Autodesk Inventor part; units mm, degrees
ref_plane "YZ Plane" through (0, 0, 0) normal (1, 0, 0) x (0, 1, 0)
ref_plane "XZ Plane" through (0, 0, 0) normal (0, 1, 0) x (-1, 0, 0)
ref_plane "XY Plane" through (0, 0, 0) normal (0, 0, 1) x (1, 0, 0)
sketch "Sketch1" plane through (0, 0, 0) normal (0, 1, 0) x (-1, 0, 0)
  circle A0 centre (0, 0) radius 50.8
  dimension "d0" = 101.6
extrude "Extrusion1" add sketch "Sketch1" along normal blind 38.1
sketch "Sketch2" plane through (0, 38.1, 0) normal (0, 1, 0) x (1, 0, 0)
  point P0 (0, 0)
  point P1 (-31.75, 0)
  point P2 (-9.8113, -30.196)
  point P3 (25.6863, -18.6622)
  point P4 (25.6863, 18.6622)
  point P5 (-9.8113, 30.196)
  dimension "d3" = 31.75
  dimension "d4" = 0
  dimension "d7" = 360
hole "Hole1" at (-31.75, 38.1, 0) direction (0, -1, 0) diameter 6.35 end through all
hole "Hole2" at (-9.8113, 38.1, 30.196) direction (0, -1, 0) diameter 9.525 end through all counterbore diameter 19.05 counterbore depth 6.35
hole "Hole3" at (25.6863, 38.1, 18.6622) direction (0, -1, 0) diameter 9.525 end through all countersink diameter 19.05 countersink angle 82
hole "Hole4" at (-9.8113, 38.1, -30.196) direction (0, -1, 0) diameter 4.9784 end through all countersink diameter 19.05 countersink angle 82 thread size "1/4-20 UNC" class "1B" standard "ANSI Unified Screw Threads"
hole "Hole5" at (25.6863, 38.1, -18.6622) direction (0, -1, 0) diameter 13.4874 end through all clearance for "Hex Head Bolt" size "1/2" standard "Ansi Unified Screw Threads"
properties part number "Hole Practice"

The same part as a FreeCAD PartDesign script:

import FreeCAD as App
import Part
import Sketcher

V = App.Vector
Q = App.Units.Quantity

doc = App.newDocument("Part")
params = doc.addObject("Spreadsheet::Sheet", "Params")
for row, (alias, value) in enumerate([
    ("sketch1_diameter", "4 in"),
    ("pad1_length", "1.5 in"),
    ("sketch2_diameter", "0.25 in"),
    ("hole_diameter", "0.25 in"),
    ("sketch3_diameter", "0.375 in"),
    ("hole2_diameter", "0.375 in"),
    ("hole2_cbore_diameter", "0.75 in"),
    ("hole2_cbore_depth", "0.25 in"),
    ("sketch4_diameter", "0.375 in"),
    ("hole3_diameter", "0.375 in"),
    ("hole3_csink_diameter", "0.75 in"),
    ("sketch5_diameter", "0.196 in"),
    ("hole4_diameter", "0.196 in"),
    ("hole4_csink_diameter", "0.75 in"),
    ("sketch6_diameter", "0.531 in"),
    ("hole5_diameter", "0.531 in"),
], start=1):
    params.set(f"A{row}", alias)
    params.set(f"B{row}", "=" + value)
    params.setAlias(f"B{row}", alias)

body = doc.addObject("PartDesign::Body", "Body")

# Sketch on XZ plane
sketch1 = doc.addObject("Sketcher::SketchObject", "Sketch")
body.addObject(sketch1)
sketch1.AttachmentSupport = (doc.XZ_Plane, [""])
sketch1.MapMode = "FlatFace"
sketch1.addGeometry(Part.Circle(V(0, 0, 0), V(0, 0, 1), 51), False)
sketch1.addConstraint([
    Sketcher.Constraint("Coincident", 0, 3, -1, 1),
    Sketcher.Constraint("Diameter", 0, Q("4 in")),
])
sketch1.setExpression("Constraints[1]", "Params.sketch1_diameter")
pad1 = doc.addObject("PartDesign::Pad", "Pad")
body.addObject(pad1)
pad1.Profile = sketch1
pad1.setExpression("Length", "Params.pad1_length")
pad1.Reversed = True

# Sketch on XZ plane
sketch2 = doc.addObject("Sketcher::SketchObject", "Sketch001")
body.addObject(sketch2)
sketch2.AttachmentSupport = (doc.XZ_Plane, [""])
sketch2.MapMode = "FlatFace"
sketch2.AttachmentOffset = App.Placement(V(0, 0, -1.5 * 25.4), App.Rotation())
sketch2.addGeometry(Part.Circle(V(-31.8, 0, 0), V(0, 0, 1), 3.2), False)
sketch2.addConstraint([
    Sketcher.Constraint("PointOnObject", 0, 3, -1),
    Sketcher.Constraint("Diameter", 0, Q("0.25 in")),
    Sketcher.Constraint("DistanceX", 0, 3, -1, 1, Q("1.25 in")),
])
sketch2.setExpression("Constraints[1]", "Params.sketch2_diameter")
doc.recompute()
hole = doc.addObject("PartDesign::Hole", "Hole")
body.addObject(hole)
hole.Profile = sketch2
hole.ThreadType = "None"
hole.setExpression("Diameter", "Params.hole_diameter")
hole.DepthType = "ThroughAll"
hole.Reversed = True

# Sketch on XZ plane
sketch3 = doc.addObject("Sketcher::SketchObject", "Sketch002")
body.addObject(sketch3)
sketch3.AttachmentSupport = (doc.XZ_Plane, [""])
sketch3.MapMode = "FlatFace"
sketch3.AttachmentOffset = App.Placement(V(0, 0, -1.5 * 25.4), App.Rotation())
sketch3.addGeometry(Part.Circle(V(-9.8, 30.2, 0), V(0, 0, 1), 4.8), False)
sketch3.addConstraint([
    Sketcher.Constraint("Diameter", 0, Q("0.375 in")),
    Sketcher.Constraint("DistanceX", 0, 3, -1, 1, 9.8113),
    Sketcher.Constraint("DistanceY", -1, 1, 0, 3, 30.196),
])
sketch3.setExpression("Constraints[0]", "Params.sketch3_diameter")
doc.recompute()
hole2 = doc.addObject("PartDesign::Hole", "Hole001")
body.addObject(hole2)
hole2.Profile = sketch3
hole2.ThreadType = "None"
hole2.setExpression("Diameter", "Params.hole2_diameter")
hole2.DepthType = "ThroughAll"
hole2.HoleCutType = "Counterbore"
hole2.setExpression("HoleCutDiameter", "Params.hole2_cbore_diameter")
hole2.setExpression("HoleCutDepth", "Params.hole2_cbore_depth")
hole2.Reversed = True

# Sketch on XZ plane
sketch4 = doc.addObject("Sketcher::SketchObject", "Sketch003")
body.addObject(sketch4)
sketch4.AttachmentSupport = (doc.XZ_Plane, [""])
sketch4.MapMode = "FlatFace"
sketch4.AttachmentOffset = App.Placement(V(0, 0, -1.5 * 25.4), App.Rotation())
sketch4.addGeometry(Part.Circle(V(25.7, 18.7, 0), V(0, 0, 1), 4.8), False)
sketch4.addConstraint([
    Sketcher.Constraint("Diameter", 0, Q("0.375 in")),
    Sketcher.Constraint("DistanceX", -1, 1, 0, 3, 25.6863),
    Sketcher.Constraint("DistanceY", -1, 1, 0, 3, 18.6622),
])
sketch4.setExpression("Constraints[0]", "Params.sketch4_diameter")
doc.recompute()
hole3 = doc.addObject("PartDesign::Hole", "Hole002")
body.addObject(hole3)
hole3.Profile = sketch4
hole3.ThreadType = "None"
hole3.setExpression("Diameter", "Params.hole3_diameter")
hole3.DepthType = "ThroughAll"
hole3.HoleCutType = "Countersink"
hole3.setExpression("HoleCutDiameter", "Params.hole3_csink_diameter")
hole3.HoleCutCountersinkAngle = 82
hole3.Reversed = True

# Sketch on XZ plane
sketch5 = doc.addObject("Sketcher::SketchObject", "Sketch004")
body.addObject(sketch5)
sketch5.AttachmentSupport = (doc.XZ_Plane, [""])
sketch5.MapMode = "FlatFace"
sketch5.AttachmentOffset = App.Placement(V(0, 0, -1.5 * 25.4), App.Rotation())
sketch5.addGeometry(Part.Circle(V(-9.8, -30.2, 0), V(0, 0, 1), 2.5), False)
sketch5.addConstraint([
    Sketcher.Constraint("Diameter", 0, Q("0.196 in")),
    Sketcher.Constraint("DistanceX", 0, 3, -1, 1, 9.8113),
    Sketcher.Constraint("DistanceY", 0, 3, -1, 1, 30.196),
])
sketch5.setExpression("Constraints[0]", "Params.sketch5_diameter")
doc.recompute()
hole4 = doc.addObject("PartDesign::Hole", "Hole003")
body.addObject(hole4)
hole4.Profile = sketch5
hole4.ThreadType = "None"
hole4.setExpression("Diameter", "Params.hole4_diameter")
hole4.DepthType = "ThroughAll"
hole4.HoleCutType = "Countersink"
hole4.setExpression("HoleCutDiameter", "Params.hole4_csink_diameter")
hole4.HoleCutCountersinkAngle = 82
hole4.Reversed = True

# Sketch on XZ plane
sketch6 = doc.addObject("Sketcher::SketchObject", "Sketch005")
body.addObject(sketch6)
sketch6.AttachmentSupport = (doc.XZ_Plane, [""])
sketch6.MapMode = "FlatFace"
sketch6.AttachmentOffset = App.Placement(V(0, 0, -1.5 * 25.4), App.Rotation())
sketch6.addGeometry(Part.Circle(V(26, -19, 0), V(0, 0, 1), 7), False)
sketch6.addConstraint([
    Sketcher.Constraint("Diameter", 0, Q("0.531 in")),
    Sketcher.Constraint("DistanceX", -1, 1, 0, 3, 25.6863),
    Sketcher.Constraint("DistanceY", 0, 3, -1, 1, 18.6622),
])
sketch6.setExpression("Constraints[0]", "Params.sketch6_diameter")
doc.recompute()
hole5 = doc.addObject("PartDesign::Hole", "Hole004")
body.addObject(hole5)
hole5.Profile = sketch6
hole5.ThreadType = "None"
hole5.setExpression("Diameter", "Params.hole5_diameter")
hole5.DepthType = "ThroughAll"
hole5.Reversed = True

doc.recompute()
